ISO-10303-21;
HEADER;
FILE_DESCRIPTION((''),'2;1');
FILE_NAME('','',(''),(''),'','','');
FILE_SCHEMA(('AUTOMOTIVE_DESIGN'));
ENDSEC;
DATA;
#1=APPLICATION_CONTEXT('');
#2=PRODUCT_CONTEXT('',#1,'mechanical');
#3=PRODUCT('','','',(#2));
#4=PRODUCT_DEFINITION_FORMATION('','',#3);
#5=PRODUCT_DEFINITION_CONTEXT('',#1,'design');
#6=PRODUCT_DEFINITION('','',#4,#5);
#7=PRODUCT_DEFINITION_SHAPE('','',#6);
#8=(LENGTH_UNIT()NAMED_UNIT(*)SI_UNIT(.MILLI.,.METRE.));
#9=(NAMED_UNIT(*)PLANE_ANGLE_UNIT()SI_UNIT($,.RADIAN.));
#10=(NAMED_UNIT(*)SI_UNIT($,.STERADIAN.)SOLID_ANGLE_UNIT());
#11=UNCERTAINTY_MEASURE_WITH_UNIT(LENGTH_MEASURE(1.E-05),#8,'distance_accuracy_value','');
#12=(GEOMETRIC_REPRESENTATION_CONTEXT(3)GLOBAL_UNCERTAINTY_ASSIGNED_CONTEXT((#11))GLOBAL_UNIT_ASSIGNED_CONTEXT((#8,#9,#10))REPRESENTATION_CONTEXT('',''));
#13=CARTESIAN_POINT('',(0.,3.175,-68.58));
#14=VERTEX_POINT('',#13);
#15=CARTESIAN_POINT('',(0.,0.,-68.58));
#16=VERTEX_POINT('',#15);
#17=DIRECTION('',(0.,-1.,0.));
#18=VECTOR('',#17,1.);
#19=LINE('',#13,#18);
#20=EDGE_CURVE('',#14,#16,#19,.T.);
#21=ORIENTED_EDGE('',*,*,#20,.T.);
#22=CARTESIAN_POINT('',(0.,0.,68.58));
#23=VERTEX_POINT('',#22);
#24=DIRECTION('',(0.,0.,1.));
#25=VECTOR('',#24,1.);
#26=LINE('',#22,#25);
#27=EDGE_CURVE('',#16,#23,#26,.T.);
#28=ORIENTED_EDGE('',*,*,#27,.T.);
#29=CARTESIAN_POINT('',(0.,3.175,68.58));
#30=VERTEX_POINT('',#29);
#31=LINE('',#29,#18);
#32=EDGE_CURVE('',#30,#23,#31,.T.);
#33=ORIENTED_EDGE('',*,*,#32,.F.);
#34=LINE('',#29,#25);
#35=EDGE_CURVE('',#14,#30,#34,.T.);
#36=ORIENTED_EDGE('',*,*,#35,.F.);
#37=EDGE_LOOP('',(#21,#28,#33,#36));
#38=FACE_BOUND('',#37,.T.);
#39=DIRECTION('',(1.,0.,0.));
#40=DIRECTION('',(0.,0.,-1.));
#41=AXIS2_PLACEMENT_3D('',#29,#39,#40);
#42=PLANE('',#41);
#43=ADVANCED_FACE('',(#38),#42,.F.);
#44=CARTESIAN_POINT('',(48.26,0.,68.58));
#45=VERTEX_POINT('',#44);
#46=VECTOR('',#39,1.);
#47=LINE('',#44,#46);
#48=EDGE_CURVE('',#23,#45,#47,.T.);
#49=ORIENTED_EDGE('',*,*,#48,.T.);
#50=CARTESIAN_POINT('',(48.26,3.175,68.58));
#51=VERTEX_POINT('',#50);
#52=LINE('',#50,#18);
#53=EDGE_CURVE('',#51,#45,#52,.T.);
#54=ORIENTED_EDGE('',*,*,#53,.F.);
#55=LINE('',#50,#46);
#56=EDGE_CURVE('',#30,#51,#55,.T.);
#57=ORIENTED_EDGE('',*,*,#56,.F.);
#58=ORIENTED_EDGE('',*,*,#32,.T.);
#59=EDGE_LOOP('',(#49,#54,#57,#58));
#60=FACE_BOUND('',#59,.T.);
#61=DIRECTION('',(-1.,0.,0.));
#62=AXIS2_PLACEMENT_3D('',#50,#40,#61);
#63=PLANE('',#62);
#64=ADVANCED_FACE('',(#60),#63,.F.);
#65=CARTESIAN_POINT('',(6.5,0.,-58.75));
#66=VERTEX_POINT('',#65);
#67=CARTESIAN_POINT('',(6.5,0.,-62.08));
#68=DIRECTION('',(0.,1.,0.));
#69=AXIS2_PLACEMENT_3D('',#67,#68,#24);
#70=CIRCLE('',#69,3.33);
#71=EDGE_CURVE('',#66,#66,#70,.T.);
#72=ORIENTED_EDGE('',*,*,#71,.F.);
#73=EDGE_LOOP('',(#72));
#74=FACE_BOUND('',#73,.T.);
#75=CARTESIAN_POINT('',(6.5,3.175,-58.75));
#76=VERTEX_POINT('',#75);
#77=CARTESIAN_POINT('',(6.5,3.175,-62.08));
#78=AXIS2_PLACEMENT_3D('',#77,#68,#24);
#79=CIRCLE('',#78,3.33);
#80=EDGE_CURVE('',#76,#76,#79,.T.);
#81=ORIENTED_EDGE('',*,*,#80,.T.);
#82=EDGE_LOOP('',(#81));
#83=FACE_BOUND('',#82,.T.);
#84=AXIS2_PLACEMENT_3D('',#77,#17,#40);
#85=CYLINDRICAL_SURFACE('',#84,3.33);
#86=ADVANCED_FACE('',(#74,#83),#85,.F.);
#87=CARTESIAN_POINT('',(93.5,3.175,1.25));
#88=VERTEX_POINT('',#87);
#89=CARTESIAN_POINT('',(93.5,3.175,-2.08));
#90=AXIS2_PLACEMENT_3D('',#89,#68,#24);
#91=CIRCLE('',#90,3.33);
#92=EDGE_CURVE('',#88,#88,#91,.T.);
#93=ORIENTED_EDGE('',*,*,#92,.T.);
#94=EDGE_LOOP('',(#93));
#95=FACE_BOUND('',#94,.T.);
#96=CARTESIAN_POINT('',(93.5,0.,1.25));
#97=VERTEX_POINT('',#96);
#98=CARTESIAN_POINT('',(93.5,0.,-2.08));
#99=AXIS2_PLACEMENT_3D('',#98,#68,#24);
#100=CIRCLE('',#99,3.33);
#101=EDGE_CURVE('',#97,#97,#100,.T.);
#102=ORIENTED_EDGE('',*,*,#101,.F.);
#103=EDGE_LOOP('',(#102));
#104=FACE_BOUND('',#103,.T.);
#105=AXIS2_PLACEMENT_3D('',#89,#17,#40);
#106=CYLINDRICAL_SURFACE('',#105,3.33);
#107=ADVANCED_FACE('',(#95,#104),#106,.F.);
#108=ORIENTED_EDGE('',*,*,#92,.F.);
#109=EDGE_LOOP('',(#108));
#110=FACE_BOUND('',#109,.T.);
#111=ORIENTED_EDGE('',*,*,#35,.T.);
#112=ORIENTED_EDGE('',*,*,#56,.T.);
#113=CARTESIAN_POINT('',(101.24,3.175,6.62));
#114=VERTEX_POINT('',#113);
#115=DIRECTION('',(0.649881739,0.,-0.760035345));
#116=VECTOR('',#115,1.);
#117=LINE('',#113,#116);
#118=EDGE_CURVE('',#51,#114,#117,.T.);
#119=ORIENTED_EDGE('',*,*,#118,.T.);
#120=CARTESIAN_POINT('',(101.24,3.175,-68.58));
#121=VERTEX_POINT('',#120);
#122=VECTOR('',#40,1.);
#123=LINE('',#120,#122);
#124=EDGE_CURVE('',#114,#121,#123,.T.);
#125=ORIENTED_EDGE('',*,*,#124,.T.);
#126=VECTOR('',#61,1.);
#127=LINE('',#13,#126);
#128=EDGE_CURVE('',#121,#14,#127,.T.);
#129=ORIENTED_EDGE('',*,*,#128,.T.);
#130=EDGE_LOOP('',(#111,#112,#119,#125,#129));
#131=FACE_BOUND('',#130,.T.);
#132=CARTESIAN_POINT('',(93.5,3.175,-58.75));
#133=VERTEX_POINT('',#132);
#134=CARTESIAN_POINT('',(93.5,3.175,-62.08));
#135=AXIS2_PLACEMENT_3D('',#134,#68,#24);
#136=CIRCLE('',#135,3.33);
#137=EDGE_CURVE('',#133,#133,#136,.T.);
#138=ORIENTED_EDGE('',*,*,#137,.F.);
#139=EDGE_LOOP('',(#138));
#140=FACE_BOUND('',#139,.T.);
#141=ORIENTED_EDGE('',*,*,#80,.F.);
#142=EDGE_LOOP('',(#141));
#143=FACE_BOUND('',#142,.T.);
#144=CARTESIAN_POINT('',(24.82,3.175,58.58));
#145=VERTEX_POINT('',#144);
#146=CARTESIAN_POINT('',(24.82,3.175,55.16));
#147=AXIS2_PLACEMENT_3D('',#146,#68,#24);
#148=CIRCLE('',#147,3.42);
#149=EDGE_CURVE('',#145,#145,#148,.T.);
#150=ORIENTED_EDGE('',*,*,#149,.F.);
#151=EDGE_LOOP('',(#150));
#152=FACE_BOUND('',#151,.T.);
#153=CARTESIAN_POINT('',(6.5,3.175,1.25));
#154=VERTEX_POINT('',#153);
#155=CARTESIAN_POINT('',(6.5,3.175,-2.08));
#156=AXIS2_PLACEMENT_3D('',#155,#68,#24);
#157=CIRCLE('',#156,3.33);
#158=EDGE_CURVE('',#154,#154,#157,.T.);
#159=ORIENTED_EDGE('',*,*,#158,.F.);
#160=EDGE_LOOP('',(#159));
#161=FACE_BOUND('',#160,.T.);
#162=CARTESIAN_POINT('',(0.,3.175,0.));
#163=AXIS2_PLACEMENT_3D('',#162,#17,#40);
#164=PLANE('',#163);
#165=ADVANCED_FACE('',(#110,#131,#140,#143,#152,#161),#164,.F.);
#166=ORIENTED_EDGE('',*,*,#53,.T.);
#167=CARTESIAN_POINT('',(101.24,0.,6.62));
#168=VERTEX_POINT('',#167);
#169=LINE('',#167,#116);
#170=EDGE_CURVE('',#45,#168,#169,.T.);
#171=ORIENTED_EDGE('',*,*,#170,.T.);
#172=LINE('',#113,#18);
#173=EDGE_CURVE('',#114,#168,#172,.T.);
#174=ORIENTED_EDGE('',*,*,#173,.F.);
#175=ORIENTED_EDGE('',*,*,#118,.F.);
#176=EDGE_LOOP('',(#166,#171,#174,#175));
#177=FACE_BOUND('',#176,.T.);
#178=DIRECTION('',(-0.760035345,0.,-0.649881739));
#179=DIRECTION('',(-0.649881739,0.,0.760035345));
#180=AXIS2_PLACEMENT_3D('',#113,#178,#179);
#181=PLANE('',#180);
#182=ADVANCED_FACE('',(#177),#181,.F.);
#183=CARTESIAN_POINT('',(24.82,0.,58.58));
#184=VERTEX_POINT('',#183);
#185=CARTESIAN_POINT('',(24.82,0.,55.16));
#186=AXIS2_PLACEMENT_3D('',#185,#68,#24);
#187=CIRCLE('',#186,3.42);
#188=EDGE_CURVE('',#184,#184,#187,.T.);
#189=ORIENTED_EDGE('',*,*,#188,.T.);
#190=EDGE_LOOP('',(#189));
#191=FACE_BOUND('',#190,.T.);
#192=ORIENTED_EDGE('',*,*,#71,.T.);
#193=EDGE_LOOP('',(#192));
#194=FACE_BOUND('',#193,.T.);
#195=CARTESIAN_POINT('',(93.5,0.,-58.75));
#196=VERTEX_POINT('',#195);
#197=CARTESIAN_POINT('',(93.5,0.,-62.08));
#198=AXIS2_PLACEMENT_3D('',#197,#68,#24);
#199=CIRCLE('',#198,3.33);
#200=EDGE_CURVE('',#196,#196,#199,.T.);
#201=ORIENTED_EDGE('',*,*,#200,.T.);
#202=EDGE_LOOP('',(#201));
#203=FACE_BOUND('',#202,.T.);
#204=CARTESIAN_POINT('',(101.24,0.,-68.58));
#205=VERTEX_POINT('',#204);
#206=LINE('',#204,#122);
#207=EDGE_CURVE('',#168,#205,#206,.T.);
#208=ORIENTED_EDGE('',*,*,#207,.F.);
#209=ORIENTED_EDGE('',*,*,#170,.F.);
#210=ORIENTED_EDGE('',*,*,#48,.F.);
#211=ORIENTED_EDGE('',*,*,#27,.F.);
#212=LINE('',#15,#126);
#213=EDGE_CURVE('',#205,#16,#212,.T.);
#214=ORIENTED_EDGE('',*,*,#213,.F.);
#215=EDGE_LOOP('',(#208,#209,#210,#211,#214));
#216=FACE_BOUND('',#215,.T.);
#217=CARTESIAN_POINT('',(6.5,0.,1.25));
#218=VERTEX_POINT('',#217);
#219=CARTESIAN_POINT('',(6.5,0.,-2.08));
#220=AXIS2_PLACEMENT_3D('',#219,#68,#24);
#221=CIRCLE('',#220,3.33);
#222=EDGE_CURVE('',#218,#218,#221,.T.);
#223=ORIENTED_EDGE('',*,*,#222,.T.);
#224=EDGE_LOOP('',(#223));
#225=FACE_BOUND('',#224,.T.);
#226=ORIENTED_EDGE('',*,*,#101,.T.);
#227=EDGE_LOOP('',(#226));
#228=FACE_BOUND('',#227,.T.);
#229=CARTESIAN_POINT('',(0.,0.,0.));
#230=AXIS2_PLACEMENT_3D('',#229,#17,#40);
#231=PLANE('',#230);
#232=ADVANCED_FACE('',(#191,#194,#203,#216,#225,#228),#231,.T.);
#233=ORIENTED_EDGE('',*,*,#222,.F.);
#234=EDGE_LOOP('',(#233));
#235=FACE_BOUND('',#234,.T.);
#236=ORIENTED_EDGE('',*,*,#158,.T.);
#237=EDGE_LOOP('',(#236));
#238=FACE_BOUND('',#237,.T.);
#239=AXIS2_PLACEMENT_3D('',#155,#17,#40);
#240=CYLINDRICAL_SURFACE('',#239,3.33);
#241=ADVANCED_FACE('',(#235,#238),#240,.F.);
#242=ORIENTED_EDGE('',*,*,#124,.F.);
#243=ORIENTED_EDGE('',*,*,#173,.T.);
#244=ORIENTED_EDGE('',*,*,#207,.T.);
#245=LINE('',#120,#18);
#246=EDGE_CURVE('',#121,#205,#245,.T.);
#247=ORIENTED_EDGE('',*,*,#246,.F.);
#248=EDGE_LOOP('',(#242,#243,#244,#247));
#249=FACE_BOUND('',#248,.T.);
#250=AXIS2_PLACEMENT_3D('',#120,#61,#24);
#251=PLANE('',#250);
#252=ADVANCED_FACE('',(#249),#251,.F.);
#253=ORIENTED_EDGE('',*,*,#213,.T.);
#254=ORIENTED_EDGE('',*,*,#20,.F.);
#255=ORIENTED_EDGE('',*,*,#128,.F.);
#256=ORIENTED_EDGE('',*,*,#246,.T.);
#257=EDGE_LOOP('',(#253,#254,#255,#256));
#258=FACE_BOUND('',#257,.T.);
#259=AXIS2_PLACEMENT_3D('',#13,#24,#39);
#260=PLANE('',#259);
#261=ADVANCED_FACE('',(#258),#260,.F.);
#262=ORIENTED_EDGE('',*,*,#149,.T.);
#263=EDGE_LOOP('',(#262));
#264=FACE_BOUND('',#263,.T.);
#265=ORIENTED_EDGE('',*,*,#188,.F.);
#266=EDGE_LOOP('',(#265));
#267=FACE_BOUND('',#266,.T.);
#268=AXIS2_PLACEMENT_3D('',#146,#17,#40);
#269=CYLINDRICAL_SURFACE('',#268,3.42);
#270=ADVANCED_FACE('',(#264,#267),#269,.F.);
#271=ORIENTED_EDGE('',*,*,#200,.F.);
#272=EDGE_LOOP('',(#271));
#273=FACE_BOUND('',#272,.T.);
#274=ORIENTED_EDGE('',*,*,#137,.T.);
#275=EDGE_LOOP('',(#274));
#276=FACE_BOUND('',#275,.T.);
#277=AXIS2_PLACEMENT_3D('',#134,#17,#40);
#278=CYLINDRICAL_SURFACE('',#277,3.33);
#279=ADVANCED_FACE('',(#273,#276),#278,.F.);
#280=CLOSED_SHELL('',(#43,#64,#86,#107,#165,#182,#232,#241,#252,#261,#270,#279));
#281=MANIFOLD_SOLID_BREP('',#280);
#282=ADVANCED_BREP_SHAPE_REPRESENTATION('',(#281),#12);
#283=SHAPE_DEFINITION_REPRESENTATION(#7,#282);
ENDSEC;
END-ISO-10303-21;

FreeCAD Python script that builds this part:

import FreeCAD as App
import Part
import Sketcher
Q = App.Units.Quantity

doc = App.newDocument("Part")
body = doc.addObject("PartDesign::Body", "Body")

# Sketch on XZ plane
sketch1 = body.newObject("Sketcher::SketchObject", "Sketch")
sketch1.AttachmentSupport = (doc.getObject("XZ_Plane"), [""])
sketch1.MapMode = "FlatFace"
sketch1.addGeometry([
    Part.LineSegment(App.Vector(0, -68.6, 0), App.Vector(0, 68.6, 0)),  # 0
    Part.LineSegment(App.Vector(0, 68.6, 0), App.Vector(48.3, 68.6, 0)),  # 1
    Part.LineSegment(App.Vector(48.3, 68.6, 0), App.Vector(101.2, 6.6, 0)),  # 2
    Part.LineSegment(App.Vector(101.2, 6.6, 0), App.Vector(101.2, -68.6, 0)),  # 3
    Part.LineSegment(App.Vector(101.2, -68.6, 0), App.Vector(0, -68.6, 0)),  # 4
    Part.Circle(App.Vector(93.5, -2.1, 0), App.Vector(0, 0, 1), 3.3),  # 5
    Part.Circle(App.Vector(24.8, 55.2, 0), App.Vector(0, 0, 1), 3.4),  # 6
    Part.Circle(App.Vector(6.5, -2.1, 0), App.Vector(0, 0, 1), 3.3),  # 7
    Part.Circle(App.Vector(93.5, -62.1, 0), App.Vector(0, 0, 1), 3.3),  # 8
    Part.Circle(App.Vector(6.5, -62.1, 0), App.Vector(0, 0, 1), 3.3),  # 9
], False)
sketch1.addConstraint([
    Sketcher.Constraint("Coincident", 0, 2, 1, 1),
    Sketcher.Constraint("Coincident", 1, 2, 2, 1),
    Sketcher.Constraint("Coincident", 2, 2, 3, 1),
    Sketcher.Constraint("Coincident", 3, 2, 4, 1),
    Sketcher.Constraint("Coincident", 4, 2, 0, 1),
    Sketcher.Constraint("Vertical", 0),
    Sketcher.Constraint("Horizontal", 1),
    Sketcher.Constraint("Vertical", 3),
    Sketcher.Constraint("Horizontal", 4),
    Sketcher.Constraint("Equal", 5, 7),
    Sketcher.Constraint("Equal", 7, 8),
    Sketcher.Constraint("Equal", 8, 9),
    Sketcher.Constraint("Symmetric", 0, 2, 4, 2, -1, 1),
    Sketcher.Constraint("Horizontal", 5, 3, 7, 3),
    Sketcher.Constraint("Horizontal", 8, 3, 9, 3),
    Sketcher.Constraint("Vertical", 5, 3, 8, 3),
    Sketcher.Constraint("Vertical", 7, 3, 9, 3),
    Sketcher.Constraint("DistanceX", 1, 1, 1, 2, Q("1.9 in")),
    Sketcher.Constraint("DistanceY", 0, 1, 0, 2, Q("5.4 in")),
    Sketcher.Constraint("Diameter", 5, 6.66),
    Sketcher.Constraint("Diameter", 6, 6.84),
    Sketcher.Constraint("DistanceX", 4, 2, 4, 1, 101.24),
    Sketcher.Constraint("DistanceY", 3, 2, 3, 1, 75.2),
    Sketcher.Constraint("DistanceX", -1, 1, 5, 3, 93.5),
    Sketcher.Constraint("DistanceY", 5, 3, -1, 1, 2.08),
    Sketcher.Constraint("DistanceX", -1, 1, 6, 3, 24.82),
    Sketcher.Constraint("DistanceY", -1, 1, 6, 3, 55.16),
    Sketcher.Constraint("DistanceX", -1, 1, 7, 3, 6.5),
    Sketcher.Constraint("DistanceY", 8, 3, -1, 1, 62.08),
])
pad1 = body.newObject("PartDesign::Pad", "Pad")
pad1.Profile = sketch1
pad1.Length = Q("0.125 in")
pad1.Reversed = True

doc.recompute()
